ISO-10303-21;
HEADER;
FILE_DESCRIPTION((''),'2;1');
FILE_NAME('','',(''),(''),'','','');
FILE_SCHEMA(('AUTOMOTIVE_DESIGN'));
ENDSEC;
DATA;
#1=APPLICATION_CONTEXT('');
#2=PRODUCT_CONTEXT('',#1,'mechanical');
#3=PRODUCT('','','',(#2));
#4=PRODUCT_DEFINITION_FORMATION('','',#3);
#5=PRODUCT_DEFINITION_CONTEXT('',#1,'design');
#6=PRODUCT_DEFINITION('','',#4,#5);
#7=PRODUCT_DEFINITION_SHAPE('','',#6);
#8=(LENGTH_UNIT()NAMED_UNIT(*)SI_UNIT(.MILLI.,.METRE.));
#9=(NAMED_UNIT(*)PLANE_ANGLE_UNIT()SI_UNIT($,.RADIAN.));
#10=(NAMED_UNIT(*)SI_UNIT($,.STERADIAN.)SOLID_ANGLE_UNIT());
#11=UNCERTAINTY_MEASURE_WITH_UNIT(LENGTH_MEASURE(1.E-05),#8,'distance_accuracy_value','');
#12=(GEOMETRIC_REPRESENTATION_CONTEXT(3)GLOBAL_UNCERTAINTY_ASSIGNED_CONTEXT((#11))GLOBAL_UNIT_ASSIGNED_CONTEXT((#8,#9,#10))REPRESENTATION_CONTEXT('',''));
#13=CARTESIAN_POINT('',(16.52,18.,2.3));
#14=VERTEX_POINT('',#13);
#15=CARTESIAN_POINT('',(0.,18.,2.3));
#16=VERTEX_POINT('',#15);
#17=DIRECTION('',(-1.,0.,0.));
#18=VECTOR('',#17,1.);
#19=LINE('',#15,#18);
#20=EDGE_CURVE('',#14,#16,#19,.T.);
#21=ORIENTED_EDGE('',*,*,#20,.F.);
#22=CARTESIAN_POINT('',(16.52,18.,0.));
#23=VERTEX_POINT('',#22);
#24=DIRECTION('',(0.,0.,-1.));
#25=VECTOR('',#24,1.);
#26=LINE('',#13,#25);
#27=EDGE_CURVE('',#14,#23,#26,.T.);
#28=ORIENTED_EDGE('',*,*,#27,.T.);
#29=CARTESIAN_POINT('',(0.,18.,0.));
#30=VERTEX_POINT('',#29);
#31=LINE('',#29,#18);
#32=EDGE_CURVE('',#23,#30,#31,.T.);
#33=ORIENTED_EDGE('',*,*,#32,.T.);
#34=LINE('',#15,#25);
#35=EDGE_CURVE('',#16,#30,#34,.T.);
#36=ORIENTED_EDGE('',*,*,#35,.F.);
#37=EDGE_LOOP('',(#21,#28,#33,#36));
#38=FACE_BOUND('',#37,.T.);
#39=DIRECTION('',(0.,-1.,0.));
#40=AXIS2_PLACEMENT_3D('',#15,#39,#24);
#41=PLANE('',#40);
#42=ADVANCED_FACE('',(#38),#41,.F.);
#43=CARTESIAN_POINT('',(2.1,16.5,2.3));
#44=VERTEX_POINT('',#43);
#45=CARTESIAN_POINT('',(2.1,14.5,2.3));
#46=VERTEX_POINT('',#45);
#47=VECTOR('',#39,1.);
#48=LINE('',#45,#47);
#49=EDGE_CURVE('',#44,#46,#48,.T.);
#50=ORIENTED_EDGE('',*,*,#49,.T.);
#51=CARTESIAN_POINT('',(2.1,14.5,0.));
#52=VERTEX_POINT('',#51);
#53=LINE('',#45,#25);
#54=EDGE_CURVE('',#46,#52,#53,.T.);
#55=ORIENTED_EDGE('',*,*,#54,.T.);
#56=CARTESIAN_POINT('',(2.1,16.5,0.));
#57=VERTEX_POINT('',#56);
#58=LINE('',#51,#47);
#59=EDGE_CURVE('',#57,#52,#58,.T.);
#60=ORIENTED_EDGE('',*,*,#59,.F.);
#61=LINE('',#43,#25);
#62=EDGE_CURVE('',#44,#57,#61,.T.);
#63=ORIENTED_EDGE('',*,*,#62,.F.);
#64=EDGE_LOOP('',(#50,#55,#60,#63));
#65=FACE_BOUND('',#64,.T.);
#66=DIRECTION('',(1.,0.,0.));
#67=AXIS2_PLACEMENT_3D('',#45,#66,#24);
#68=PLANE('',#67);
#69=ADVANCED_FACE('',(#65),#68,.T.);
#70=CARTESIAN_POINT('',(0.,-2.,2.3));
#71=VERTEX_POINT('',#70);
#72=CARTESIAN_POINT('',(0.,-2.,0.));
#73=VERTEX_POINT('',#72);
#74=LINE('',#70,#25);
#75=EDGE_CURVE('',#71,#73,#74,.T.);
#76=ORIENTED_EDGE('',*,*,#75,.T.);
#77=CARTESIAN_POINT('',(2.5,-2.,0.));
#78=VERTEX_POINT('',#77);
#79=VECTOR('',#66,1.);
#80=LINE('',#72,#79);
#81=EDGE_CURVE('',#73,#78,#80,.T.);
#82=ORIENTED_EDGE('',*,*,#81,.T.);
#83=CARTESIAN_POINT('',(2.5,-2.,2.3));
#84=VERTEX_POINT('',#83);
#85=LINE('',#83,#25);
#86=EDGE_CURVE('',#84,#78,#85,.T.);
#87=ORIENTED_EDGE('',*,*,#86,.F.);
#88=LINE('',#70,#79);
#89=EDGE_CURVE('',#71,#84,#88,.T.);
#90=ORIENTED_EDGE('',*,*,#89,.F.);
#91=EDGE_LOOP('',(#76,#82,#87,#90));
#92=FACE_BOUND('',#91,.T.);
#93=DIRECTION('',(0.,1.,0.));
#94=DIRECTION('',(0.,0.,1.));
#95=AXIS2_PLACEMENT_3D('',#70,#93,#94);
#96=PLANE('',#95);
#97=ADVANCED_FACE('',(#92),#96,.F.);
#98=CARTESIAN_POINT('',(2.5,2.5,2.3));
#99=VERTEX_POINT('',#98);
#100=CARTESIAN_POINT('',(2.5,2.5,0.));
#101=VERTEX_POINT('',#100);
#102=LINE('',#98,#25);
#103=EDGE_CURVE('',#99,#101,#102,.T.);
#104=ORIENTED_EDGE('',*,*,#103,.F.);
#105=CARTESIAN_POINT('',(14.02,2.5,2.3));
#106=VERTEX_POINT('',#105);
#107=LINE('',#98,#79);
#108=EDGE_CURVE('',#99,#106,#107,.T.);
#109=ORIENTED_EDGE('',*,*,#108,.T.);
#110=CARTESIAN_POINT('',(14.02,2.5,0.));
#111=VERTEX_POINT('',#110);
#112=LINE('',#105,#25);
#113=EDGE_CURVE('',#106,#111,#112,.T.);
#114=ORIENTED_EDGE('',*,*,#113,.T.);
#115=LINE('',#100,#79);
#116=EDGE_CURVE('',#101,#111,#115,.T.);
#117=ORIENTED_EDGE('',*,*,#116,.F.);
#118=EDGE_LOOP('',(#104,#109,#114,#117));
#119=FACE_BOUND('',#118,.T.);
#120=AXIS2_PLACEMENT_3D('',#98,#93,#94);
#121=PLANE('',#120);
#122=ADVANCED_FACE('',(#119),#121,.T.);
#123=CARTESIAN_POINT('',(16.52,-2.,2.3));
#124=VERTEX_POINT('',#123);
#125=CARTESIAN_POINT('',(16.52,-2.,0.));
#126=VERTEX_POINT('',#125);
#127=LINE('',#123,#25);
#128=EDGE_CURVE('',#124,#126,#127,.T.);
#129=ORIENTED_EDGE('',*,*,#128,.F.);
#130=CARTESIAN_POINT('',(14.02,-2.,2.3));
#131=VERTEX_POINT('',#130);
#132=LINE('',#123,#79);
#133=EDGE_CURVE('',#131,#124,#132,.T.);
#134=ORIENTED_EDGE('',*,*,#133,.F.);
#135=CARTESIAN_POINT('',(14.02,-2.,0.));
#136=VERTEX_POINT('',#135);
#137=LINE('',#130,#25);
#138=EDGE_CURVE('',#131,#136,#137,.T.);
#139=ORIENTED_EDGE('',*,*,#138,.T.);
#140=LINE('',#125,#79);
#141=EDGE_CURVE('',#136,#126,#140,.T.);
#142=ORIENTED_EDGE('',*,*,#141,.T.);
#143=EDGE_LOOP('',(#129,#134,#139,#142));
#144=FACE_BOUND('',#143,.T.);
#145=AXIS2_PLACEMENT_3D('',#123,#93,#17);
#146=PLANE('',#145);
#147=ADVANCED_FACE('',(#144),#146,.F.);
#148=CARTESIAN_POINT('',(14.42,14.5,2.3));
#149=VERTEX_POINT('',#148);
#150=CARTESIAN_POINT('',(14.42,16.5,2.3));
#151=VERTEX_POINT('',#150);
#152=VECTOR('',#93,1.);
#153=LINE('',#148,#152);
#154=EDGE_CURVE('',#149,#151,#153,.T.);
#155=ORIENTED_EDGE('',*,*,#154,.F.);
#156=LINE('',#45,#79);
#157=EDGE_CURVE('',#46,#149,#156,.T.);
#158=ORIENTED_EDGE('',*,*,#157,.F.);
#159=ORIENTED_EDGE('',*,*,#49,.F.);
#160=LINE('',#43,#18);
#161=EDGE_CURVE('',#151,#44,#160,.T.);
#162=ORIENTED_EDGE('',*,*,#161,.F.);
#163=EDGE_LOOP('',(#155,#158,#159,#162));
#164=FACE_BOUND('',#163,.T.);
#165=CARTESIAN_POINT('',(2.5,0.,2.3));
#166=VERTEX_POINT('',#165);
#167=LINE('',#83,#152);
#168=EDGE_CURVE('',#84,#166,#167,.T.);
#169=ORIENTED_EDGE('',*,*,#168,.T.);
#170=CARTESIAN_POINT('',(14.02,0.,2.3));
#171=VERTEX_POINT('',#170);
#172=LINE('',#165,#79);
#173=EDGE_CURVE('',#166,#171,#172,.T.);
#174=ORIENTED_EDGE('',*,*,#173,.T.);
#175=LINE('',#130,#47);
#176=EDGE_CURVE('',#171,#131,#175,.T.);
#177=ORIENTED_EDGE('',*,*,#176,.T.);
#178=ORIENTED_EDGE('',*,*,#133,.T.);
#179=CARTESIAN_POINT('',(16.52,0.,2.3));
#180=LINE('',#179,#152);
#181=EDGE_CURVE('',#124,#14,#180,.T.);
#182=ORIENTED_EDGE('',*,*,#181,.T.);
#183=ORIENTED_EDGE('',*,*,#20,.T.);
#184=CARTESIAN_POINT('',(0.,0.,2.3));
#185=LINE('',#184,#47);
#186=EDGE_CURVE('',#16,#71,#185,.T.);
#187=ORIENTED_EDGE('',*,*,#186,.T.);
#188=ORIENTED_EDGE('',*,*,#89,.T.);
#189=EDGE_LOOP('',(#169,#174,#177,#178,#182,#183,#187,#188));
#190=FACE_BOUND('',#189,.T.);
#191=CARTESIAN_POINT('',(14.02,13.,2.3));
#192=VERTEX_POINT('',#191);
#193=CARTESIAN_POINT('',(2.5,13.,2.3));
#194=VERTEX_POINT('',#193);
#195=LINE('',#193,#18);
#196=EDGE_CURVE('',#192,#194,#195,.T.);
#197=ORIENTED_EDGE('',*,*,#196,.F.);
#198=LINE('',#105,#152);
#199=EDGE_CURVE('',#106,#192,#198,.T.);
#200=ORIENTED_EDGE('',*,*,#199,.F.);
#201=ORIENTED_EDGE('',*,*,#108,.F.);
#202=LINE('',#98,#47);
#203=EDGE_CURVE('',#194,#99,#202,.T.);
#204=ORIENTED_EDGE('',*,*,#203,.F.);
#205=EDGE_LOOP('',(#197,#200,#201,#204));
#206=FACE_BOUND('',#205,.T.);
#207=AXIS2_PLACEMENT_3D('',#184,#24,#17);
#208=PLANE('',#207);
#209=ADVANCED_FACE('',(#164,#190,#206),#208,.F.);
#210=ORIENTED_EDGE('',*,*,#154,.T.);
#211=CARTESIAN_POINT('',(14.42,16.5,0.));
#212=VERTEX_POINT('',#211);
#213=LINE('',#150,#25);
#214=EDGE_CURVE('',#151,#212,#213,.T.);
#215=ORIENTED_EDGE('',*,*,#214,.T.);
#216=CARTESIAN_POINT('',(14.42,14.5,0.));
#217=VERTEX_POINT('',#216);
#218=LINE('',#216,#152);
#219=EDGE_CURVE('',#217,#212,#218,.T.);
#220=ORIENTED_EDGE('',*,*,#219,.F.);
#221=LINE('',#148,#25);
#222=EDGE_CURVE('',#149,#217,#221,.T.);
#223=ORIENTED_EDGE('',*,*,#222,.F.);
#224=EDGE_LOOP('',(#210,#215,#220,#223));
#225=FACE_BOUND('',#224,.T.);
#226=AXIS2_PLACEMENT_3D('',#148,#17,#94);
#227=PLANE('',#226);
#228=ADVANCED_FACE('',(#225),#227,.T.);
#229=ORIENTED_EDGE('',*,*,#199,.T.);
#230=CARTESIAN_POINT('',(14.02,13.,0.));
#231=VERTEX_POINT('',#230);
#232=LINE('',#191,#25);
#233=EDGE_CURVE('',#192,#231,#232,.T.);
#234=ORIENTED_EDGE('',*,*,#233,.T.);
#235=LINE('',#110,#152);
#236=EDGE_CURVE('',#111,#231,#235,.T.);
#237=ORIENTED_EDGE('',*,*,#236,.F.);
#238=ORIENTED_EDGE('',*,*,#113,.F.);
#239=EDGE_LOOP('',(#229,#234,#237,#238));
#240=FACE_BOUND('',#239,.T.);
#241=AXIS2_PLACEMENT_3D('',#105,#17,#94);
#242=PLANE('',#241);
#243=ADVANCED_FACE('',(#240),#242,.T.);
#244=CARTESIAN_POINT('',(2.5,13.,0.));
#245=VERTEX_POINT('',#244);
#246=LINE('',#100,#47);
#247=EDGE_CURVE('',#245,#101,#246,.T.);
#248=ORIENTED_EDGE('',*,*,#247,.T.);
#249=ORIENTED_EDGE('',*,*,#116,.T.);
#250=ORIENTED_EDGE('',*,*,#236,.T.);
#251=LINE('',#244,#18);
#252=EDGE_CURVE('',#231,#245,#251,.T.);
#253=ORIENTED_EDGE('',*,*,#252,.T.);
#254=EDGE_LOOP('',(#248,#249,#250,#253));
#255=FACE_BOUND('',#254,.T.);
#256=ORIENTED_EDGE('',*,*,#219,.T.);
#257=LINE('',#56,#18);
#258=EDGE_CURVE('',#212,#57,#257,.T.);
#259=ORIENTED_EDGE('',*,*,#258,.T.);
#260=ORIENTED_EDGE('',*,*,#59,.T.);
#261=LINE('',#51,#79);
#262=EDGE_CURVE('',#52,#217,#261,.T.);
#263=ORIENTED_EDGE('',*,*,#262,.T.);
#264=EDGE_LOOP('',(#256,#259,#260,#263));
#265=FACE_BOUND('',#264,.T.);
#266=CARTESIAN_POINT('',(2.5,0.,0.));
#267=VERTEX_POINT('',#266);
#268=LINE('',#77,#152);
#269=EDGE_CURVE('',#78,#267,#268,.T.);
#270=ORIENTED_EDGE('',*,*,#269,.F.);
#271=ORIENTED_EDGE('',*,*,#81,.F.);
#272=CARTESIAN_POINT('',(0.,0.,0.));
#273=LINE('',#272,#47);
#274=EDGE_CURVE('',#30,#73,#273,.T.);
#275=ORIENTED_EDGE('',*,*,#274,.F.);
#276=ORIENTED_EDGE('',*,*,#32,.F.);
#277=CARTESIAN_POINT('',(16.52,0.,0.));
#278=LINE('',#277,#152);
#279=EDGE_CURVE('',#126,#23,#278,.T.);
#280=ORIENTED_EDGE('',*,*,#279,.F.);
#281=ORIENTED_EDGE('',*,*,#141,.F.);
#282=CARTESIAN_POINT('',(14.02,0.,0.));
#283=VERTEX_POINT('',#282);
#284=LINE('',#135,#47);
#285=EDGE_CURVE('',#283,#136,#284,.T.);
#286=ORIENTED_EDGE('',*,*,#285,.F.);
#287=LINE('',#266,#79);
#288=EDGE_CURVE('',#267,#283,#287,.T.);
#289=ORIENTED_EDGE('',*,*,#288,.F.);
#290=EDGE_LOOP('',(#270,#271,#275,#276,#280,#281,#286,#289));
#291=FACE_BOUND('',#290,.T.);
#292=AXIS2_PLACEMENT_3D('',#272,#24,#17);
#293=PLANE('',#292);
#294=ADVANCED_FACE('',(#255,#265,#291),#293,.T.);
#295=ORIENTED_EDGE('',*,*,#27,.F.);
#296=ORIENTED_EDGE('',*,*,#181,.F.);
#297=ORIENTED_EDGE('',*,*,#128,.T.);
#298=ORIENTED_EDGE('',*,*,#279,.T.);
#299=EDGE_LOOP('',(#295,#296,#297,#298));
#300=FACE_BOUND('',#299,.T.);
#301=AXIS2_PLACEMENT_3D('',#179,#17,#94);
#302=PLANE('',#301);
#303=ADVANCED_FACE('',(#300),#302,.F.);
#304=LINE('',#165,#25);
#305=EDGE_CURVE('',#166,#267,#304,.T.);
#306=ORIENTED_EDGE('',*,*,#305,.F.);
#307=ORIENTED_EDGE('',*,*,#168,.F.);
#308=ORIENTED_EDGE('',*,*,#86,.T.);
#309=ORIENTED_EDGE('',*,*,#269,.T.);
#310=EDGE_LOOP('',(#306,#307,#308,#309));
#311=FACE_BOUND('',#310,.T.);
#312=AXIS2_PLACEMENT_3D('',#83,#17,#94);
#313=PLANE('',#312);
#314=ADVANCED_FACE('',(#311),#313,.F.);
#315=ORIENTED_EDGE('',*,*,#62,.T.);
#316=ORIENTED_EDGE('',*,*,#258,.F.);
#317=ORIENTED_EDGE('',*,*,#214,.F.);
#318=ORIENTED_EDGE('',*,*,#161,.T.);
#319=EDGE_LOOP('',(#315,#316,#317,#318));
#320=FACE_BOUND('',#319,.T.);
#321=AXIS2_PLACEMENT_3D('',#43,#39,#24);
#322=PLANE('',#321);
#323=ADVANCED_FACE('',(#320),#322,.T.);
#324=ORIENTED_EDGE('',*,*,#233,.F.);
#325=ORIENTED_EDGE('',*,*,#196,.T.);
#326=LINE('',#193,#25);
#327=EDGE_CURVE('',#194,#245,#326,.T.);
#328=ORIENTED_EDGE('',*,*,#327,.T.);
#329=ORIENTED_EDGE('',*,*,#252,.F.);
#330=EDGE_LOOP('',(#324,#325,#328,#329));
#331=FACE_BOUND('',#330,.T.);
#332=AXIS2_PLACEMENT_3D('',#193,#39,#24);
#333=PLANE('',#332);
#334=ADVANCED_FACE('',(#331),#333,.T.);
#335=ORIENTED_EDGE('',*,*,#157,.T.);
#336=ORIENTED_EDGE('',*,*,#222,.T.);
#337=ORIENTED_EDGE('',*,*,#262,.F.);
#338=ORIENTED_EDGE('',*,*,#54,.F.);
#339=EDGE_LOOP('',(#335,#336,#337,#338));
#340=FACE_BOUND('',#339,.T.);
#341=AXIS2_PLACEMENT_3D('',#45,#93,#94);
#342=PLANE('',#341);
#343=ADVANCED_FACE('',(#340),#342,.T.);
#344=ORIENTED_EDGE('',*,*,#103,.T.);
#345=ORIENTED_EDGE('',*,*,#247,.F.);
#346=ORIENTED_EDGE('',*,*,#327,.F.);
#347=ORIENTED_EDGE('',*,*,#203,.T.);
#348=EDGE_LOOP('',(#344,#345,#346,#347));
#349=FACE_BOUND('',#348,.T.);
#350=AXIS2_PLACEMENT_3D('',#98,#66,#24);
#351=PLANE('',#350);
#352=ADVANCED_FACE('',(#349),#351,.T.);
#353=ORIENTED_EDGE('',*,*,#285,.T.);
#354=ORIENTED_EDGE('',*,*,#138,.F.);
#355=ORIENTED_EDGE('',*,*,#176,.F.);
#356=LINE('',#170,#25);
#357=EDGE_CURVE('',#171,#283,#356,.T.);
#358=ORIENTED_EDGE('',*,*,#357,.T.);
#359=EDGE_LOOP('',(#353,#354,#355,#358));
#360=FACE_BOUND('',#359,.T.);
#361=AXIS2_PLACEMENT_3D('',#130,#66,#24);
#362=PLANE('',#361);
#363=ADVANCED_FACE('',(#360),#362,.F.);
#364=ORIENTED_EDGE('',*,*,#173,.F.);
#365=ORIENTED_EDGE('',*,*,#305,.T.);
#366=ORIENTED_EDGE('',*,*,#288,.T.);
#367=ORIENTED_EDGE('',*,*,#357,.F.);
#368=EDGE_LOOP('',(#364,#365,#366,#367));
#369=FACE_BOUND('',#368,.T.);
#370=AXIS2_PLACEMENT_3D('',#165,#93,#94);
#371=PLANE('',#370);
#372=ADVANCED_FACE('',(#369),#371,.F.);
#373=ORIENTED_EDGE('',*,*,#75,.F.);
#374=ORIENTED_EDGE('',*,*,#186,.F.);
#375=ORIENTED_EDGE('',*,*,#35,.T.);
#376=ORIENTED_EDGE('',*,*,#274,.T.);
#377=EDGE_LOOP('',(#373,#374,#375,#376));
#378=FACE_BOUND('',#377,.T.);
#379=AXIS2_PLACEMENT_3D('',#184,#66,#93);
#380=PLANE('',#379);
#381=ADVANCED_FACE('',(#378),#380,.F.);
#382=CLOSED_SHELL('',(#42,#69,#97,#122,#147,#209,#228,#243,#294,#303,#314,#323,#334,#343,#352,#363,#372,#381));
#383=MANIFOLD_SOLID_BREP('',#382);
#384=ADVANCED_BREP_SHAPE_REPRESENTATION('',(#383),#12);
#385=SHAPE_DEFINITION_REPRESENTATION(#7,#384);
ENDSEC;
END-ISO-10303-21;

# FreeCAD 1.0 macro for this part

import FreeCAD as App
import Part
import Sketcher

V = App.Vector


def add_polygon(sketch, points):
    """Adds a closed chain of lines whose ends are joined by coincident constraints."""
    first, n = sketch.GeometryCount, len(points)
    for a, b in zip(points, points[1:] + points[:1]):
        sketch.addGeometry(Part.LineSegment(App.Vector(*a, 0), App.Vector(*b, 0)), False)
    for i in range(n):
        sketch.addConstraint(Sketcher.Constraint("Coincident", first + i, 2, first + (i + 1) % n, 1))

doc = App.newDocument("Part")
body = doc.addObject("PartDesign::Body", "Body")

sketch1 = body.newObject("Sketcher::SketchObject", "Sketch")
sketch1.AttachmentSupport = (doc.getObject("XY_Plane"), [""])
sketch1.MapMode = "FlatFace"
add_polygon(sketch1, [(0, -2), (2.5, -2), (2.5, 0), (14.02, 0), (14.02, -2), (16.52, -2), (16.52, 18), (0, 18)])
add_polygon(sketch1, [(14.02, 2.5), (2.5, 2.5), (2.5, 13), (14.02, 13)])
add_polygon(sketch1, [(14.42, 14.5), (2.1, 14.5), (2.1, 16.5), (14.42, 16.5)])
sketch1.addConstraint([
    Sketcher.Constraint("Horizontal", 0),
    Sketcher.Constraint("Vertical", 1),
    Sketcher.Constraint("Horizontal", 2),
    Sketcher.Constraint("Vertical", 3),
    Sketcher.Constraint("Horizontal", 4),
    Sketcher.Constraint("Vertical", 5),
    Sketcher.Constraint("Horizontal", 6),
    Sketcher.Constraint("Vertical", 7),
    Sketcher.Constraint("Horizontal", 8),
    Sketcher.Constraint("Vertical", 9),
    Sketcher.Constraint("Horizontal", 10),
    Sketcher.Constraint("Vertical", 11),
    Sketcher.Constraint("Horizontal", 12),
    Sketcher.Constraint("Vertical", 13),
    Sketcher.Constraint("Horizontal", 14),
    Sketcher.Constraint("Vertical", 15),
    Sketcher.Constraint("PointOnObject", 1, 2, -1),
    Sketcher.Constraint("PointOnObject", 6, 2, -2),
    Sketcher.Constraint("Horizontal", 0, 2, 3, 2),
    Sketcher.Constraint("Vertical", 1, 2, 8, 2),
    Sketcher.Constraint("Vertical", 3, 2, 10, 2),
    Sketcher.Constraint("Equal", 0, 4),
    Sketcher.Constraint("Equal", 3, 13),
    Sketcher.Constraint("DistanceY", 1, 1, 1, 2, 2.0),
    Sketcher.Constraint("DistanceY", 5, 1, 5, 2, 20.0),
    Sketcher.Constraint("DistanceX", 0, 1, 0, 2, 2.5),
    Sketcher.Constraint("DistanceY", 9, 1, 9, 2, 10.5),
    Sketcher.Constraint("DistanceY", -1, 1, 9, 2, 13.0),
    Sketcher.Constraint("DistanceY", 8, 2, 12, 2, 12.0),
    Sketcher.Constraint("DistanceX", 2, 1, 2, 2, 11.52),
    Sketcher.Constraint("DistanceX", 12, 2, 12, 1, 12.32),
    Sketcher.Constraint("DistanceX", -1, 1, 12, 2, 2.1),
])
pad1 = body.newObject("PartDesign::Pad", "Pad")
pad1.Profile = sketch1
pad1.Length = 2.3

doc.recompute()
